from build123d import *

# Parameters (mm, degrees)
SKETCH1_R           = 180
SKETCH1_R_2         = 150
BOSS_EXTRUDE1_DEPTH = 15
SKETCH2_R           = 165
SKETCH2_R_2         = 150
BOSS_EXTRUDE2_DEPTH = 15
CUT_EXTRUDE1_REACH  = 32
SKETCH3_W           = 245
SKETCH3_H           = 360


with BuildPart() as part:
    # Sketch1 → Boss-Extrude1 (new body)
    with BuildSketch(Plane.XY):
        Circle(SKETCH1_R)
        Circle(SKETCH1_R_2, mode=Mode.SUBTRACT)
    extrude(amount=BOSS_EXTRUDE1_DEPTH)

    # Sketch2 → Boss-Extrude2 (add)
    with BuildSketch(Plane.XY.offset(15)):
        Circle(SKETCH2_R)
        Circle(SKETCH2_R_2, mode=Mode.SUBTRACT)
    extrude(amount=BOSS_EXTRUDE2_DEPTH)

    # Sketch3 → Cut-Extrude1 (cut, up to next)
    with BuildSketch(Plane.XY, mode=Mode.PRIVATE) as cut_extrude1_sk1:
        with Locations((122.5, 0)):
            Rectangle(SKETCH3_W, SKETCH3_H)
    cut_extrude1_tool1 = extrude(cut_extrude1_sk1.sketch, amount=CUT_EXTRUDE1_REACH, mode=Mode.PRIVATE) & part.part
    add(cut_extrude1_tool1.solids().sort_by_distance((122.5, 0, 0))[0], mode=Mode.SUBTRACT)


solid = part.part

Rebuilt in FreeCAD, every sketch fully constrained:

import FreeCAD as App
import Part
import Sketcher

V = App.Vector
Q = App.Units.Quantity


def add_polygon(sketch, points):
    """Adds a closed chain of lines whose ends are joined by coincident constraints."""
    first, n = sketch.GeometryCount, len(points)
    for a, b in zip(points, points[1:] + points[:1]):
        sketch.addGeometry(Part.LineSegment(App.Vector(*a, 0), App.Vector(*b, 0)), False)
    for i in range(n):
        sketch.addConstraint(Sketcher.Constraint("Coincident", first + i, 2, first + (i + 1) % n, 1))

doc = App.newDocument("Part")
body = doc.addObject("PartDesign::Body", "Body")

sketch1 = doc.addObject("Sketcher::SketchObject", "Sketch")
body.addObject(sketch1)
sketch1.AttachmentSupport = (doc.XY_Plane, [""])
sketch1.MapMode = "FlatFace"
sketch1.addGeometry([
    Part.Circle(V(0, 0, 0), V(0, 0, 1), 180),
    Part.Circle(V(0, 0, 0), V(0, 0, 1), 150),
], False)
sketch1.addConstraint([
    Sketcher.Constraint("Coincident", 0, 3, -1, 1),
    Sketcher.Constraint("Coincident", 1, 3, -1, 1),
    Sketcher.Constraint("Diameter", 0, Q("360 mm")),
    Sketcher.Constraint("Diameter", 1, Q("300 mm")),
])
pad1 = doc.addObject("PartDesign::Pad", "Pad")
body.addObject(pad1)
pad1.Profile = sketch1
pad1.Length = 15

sketch2 = doc.addObject("Sketcher::SketchObject", "Sketch001")
body.addObject(sketch2)
sketch2.AttachmentSupport = (doc.XY_Plane, [""])
sketch2.MapMode = "FlatFace"
sketch2.AttachmentOffset = App.Placement(V(0, 0, 15), App.Rotation())
sketch2.addGeometry([
    Part.Circle(V(0, 0, 0), V(0, 0, 1), 165),
    Part.Circle(V(0, 0, 0), V(0, 0, 1), 150),
], False)
sketch2.addConstraint([
    Sketcher.Constraint("Coincident", 0, 3, -1, 1),
    Sketcher.Constraint("Coincident", 1, 3, -1, 1),
    Sketcher.Constraint("Diameter", 0, Q("330 mm")),
    Sketcher.Constraint("Diameter", 1, Q("300 mm")),
])
pad2 = doc.addObject("PartDesign::Pad", "Pad001")
body.addObject(pad2)
pad2.Profile = sketch2
pad2.Length = 15

sketch3 = doc.addObject("Sketcher::SketchObject", "Sketch002")
body.addObject(sketch3)
sketch3.AttachmentSupport = (doc.XY_Plane, [""])
sketch3.MapMode = "FlatFace"
add_polygon(sketch3, [(0, 180), (0, -180), (245, -180), (245, 180)])
sketch3.addConstraint([
    Sketcher.Constraint("Vertical", 0),
    Sketcher.Constraint("Horizontal", 1),
    Sketcher.Constraint("Vertical", 2),
    Sketcher.Constraint("Horizontal", 3),
    Sketcher.Constraint("Symmetric", 0, 2, 3, 2, -1, 1),
    Sketcher.Constraint("DistanceX", 1, 1, 1, 2, Q("245 mm")),
    Sketcher.Constraint("DistanceY", 0, 2, 0, 1, Q("360 mm")),
])
pocket1 = doc.addObject("PartDesign::Pocket", "Pocket")
body.addObject(pocket1)
pocket1.Profile = sketch3
pocket1.Length = 30
pocket1.Reversed = True

doc.recompute()
